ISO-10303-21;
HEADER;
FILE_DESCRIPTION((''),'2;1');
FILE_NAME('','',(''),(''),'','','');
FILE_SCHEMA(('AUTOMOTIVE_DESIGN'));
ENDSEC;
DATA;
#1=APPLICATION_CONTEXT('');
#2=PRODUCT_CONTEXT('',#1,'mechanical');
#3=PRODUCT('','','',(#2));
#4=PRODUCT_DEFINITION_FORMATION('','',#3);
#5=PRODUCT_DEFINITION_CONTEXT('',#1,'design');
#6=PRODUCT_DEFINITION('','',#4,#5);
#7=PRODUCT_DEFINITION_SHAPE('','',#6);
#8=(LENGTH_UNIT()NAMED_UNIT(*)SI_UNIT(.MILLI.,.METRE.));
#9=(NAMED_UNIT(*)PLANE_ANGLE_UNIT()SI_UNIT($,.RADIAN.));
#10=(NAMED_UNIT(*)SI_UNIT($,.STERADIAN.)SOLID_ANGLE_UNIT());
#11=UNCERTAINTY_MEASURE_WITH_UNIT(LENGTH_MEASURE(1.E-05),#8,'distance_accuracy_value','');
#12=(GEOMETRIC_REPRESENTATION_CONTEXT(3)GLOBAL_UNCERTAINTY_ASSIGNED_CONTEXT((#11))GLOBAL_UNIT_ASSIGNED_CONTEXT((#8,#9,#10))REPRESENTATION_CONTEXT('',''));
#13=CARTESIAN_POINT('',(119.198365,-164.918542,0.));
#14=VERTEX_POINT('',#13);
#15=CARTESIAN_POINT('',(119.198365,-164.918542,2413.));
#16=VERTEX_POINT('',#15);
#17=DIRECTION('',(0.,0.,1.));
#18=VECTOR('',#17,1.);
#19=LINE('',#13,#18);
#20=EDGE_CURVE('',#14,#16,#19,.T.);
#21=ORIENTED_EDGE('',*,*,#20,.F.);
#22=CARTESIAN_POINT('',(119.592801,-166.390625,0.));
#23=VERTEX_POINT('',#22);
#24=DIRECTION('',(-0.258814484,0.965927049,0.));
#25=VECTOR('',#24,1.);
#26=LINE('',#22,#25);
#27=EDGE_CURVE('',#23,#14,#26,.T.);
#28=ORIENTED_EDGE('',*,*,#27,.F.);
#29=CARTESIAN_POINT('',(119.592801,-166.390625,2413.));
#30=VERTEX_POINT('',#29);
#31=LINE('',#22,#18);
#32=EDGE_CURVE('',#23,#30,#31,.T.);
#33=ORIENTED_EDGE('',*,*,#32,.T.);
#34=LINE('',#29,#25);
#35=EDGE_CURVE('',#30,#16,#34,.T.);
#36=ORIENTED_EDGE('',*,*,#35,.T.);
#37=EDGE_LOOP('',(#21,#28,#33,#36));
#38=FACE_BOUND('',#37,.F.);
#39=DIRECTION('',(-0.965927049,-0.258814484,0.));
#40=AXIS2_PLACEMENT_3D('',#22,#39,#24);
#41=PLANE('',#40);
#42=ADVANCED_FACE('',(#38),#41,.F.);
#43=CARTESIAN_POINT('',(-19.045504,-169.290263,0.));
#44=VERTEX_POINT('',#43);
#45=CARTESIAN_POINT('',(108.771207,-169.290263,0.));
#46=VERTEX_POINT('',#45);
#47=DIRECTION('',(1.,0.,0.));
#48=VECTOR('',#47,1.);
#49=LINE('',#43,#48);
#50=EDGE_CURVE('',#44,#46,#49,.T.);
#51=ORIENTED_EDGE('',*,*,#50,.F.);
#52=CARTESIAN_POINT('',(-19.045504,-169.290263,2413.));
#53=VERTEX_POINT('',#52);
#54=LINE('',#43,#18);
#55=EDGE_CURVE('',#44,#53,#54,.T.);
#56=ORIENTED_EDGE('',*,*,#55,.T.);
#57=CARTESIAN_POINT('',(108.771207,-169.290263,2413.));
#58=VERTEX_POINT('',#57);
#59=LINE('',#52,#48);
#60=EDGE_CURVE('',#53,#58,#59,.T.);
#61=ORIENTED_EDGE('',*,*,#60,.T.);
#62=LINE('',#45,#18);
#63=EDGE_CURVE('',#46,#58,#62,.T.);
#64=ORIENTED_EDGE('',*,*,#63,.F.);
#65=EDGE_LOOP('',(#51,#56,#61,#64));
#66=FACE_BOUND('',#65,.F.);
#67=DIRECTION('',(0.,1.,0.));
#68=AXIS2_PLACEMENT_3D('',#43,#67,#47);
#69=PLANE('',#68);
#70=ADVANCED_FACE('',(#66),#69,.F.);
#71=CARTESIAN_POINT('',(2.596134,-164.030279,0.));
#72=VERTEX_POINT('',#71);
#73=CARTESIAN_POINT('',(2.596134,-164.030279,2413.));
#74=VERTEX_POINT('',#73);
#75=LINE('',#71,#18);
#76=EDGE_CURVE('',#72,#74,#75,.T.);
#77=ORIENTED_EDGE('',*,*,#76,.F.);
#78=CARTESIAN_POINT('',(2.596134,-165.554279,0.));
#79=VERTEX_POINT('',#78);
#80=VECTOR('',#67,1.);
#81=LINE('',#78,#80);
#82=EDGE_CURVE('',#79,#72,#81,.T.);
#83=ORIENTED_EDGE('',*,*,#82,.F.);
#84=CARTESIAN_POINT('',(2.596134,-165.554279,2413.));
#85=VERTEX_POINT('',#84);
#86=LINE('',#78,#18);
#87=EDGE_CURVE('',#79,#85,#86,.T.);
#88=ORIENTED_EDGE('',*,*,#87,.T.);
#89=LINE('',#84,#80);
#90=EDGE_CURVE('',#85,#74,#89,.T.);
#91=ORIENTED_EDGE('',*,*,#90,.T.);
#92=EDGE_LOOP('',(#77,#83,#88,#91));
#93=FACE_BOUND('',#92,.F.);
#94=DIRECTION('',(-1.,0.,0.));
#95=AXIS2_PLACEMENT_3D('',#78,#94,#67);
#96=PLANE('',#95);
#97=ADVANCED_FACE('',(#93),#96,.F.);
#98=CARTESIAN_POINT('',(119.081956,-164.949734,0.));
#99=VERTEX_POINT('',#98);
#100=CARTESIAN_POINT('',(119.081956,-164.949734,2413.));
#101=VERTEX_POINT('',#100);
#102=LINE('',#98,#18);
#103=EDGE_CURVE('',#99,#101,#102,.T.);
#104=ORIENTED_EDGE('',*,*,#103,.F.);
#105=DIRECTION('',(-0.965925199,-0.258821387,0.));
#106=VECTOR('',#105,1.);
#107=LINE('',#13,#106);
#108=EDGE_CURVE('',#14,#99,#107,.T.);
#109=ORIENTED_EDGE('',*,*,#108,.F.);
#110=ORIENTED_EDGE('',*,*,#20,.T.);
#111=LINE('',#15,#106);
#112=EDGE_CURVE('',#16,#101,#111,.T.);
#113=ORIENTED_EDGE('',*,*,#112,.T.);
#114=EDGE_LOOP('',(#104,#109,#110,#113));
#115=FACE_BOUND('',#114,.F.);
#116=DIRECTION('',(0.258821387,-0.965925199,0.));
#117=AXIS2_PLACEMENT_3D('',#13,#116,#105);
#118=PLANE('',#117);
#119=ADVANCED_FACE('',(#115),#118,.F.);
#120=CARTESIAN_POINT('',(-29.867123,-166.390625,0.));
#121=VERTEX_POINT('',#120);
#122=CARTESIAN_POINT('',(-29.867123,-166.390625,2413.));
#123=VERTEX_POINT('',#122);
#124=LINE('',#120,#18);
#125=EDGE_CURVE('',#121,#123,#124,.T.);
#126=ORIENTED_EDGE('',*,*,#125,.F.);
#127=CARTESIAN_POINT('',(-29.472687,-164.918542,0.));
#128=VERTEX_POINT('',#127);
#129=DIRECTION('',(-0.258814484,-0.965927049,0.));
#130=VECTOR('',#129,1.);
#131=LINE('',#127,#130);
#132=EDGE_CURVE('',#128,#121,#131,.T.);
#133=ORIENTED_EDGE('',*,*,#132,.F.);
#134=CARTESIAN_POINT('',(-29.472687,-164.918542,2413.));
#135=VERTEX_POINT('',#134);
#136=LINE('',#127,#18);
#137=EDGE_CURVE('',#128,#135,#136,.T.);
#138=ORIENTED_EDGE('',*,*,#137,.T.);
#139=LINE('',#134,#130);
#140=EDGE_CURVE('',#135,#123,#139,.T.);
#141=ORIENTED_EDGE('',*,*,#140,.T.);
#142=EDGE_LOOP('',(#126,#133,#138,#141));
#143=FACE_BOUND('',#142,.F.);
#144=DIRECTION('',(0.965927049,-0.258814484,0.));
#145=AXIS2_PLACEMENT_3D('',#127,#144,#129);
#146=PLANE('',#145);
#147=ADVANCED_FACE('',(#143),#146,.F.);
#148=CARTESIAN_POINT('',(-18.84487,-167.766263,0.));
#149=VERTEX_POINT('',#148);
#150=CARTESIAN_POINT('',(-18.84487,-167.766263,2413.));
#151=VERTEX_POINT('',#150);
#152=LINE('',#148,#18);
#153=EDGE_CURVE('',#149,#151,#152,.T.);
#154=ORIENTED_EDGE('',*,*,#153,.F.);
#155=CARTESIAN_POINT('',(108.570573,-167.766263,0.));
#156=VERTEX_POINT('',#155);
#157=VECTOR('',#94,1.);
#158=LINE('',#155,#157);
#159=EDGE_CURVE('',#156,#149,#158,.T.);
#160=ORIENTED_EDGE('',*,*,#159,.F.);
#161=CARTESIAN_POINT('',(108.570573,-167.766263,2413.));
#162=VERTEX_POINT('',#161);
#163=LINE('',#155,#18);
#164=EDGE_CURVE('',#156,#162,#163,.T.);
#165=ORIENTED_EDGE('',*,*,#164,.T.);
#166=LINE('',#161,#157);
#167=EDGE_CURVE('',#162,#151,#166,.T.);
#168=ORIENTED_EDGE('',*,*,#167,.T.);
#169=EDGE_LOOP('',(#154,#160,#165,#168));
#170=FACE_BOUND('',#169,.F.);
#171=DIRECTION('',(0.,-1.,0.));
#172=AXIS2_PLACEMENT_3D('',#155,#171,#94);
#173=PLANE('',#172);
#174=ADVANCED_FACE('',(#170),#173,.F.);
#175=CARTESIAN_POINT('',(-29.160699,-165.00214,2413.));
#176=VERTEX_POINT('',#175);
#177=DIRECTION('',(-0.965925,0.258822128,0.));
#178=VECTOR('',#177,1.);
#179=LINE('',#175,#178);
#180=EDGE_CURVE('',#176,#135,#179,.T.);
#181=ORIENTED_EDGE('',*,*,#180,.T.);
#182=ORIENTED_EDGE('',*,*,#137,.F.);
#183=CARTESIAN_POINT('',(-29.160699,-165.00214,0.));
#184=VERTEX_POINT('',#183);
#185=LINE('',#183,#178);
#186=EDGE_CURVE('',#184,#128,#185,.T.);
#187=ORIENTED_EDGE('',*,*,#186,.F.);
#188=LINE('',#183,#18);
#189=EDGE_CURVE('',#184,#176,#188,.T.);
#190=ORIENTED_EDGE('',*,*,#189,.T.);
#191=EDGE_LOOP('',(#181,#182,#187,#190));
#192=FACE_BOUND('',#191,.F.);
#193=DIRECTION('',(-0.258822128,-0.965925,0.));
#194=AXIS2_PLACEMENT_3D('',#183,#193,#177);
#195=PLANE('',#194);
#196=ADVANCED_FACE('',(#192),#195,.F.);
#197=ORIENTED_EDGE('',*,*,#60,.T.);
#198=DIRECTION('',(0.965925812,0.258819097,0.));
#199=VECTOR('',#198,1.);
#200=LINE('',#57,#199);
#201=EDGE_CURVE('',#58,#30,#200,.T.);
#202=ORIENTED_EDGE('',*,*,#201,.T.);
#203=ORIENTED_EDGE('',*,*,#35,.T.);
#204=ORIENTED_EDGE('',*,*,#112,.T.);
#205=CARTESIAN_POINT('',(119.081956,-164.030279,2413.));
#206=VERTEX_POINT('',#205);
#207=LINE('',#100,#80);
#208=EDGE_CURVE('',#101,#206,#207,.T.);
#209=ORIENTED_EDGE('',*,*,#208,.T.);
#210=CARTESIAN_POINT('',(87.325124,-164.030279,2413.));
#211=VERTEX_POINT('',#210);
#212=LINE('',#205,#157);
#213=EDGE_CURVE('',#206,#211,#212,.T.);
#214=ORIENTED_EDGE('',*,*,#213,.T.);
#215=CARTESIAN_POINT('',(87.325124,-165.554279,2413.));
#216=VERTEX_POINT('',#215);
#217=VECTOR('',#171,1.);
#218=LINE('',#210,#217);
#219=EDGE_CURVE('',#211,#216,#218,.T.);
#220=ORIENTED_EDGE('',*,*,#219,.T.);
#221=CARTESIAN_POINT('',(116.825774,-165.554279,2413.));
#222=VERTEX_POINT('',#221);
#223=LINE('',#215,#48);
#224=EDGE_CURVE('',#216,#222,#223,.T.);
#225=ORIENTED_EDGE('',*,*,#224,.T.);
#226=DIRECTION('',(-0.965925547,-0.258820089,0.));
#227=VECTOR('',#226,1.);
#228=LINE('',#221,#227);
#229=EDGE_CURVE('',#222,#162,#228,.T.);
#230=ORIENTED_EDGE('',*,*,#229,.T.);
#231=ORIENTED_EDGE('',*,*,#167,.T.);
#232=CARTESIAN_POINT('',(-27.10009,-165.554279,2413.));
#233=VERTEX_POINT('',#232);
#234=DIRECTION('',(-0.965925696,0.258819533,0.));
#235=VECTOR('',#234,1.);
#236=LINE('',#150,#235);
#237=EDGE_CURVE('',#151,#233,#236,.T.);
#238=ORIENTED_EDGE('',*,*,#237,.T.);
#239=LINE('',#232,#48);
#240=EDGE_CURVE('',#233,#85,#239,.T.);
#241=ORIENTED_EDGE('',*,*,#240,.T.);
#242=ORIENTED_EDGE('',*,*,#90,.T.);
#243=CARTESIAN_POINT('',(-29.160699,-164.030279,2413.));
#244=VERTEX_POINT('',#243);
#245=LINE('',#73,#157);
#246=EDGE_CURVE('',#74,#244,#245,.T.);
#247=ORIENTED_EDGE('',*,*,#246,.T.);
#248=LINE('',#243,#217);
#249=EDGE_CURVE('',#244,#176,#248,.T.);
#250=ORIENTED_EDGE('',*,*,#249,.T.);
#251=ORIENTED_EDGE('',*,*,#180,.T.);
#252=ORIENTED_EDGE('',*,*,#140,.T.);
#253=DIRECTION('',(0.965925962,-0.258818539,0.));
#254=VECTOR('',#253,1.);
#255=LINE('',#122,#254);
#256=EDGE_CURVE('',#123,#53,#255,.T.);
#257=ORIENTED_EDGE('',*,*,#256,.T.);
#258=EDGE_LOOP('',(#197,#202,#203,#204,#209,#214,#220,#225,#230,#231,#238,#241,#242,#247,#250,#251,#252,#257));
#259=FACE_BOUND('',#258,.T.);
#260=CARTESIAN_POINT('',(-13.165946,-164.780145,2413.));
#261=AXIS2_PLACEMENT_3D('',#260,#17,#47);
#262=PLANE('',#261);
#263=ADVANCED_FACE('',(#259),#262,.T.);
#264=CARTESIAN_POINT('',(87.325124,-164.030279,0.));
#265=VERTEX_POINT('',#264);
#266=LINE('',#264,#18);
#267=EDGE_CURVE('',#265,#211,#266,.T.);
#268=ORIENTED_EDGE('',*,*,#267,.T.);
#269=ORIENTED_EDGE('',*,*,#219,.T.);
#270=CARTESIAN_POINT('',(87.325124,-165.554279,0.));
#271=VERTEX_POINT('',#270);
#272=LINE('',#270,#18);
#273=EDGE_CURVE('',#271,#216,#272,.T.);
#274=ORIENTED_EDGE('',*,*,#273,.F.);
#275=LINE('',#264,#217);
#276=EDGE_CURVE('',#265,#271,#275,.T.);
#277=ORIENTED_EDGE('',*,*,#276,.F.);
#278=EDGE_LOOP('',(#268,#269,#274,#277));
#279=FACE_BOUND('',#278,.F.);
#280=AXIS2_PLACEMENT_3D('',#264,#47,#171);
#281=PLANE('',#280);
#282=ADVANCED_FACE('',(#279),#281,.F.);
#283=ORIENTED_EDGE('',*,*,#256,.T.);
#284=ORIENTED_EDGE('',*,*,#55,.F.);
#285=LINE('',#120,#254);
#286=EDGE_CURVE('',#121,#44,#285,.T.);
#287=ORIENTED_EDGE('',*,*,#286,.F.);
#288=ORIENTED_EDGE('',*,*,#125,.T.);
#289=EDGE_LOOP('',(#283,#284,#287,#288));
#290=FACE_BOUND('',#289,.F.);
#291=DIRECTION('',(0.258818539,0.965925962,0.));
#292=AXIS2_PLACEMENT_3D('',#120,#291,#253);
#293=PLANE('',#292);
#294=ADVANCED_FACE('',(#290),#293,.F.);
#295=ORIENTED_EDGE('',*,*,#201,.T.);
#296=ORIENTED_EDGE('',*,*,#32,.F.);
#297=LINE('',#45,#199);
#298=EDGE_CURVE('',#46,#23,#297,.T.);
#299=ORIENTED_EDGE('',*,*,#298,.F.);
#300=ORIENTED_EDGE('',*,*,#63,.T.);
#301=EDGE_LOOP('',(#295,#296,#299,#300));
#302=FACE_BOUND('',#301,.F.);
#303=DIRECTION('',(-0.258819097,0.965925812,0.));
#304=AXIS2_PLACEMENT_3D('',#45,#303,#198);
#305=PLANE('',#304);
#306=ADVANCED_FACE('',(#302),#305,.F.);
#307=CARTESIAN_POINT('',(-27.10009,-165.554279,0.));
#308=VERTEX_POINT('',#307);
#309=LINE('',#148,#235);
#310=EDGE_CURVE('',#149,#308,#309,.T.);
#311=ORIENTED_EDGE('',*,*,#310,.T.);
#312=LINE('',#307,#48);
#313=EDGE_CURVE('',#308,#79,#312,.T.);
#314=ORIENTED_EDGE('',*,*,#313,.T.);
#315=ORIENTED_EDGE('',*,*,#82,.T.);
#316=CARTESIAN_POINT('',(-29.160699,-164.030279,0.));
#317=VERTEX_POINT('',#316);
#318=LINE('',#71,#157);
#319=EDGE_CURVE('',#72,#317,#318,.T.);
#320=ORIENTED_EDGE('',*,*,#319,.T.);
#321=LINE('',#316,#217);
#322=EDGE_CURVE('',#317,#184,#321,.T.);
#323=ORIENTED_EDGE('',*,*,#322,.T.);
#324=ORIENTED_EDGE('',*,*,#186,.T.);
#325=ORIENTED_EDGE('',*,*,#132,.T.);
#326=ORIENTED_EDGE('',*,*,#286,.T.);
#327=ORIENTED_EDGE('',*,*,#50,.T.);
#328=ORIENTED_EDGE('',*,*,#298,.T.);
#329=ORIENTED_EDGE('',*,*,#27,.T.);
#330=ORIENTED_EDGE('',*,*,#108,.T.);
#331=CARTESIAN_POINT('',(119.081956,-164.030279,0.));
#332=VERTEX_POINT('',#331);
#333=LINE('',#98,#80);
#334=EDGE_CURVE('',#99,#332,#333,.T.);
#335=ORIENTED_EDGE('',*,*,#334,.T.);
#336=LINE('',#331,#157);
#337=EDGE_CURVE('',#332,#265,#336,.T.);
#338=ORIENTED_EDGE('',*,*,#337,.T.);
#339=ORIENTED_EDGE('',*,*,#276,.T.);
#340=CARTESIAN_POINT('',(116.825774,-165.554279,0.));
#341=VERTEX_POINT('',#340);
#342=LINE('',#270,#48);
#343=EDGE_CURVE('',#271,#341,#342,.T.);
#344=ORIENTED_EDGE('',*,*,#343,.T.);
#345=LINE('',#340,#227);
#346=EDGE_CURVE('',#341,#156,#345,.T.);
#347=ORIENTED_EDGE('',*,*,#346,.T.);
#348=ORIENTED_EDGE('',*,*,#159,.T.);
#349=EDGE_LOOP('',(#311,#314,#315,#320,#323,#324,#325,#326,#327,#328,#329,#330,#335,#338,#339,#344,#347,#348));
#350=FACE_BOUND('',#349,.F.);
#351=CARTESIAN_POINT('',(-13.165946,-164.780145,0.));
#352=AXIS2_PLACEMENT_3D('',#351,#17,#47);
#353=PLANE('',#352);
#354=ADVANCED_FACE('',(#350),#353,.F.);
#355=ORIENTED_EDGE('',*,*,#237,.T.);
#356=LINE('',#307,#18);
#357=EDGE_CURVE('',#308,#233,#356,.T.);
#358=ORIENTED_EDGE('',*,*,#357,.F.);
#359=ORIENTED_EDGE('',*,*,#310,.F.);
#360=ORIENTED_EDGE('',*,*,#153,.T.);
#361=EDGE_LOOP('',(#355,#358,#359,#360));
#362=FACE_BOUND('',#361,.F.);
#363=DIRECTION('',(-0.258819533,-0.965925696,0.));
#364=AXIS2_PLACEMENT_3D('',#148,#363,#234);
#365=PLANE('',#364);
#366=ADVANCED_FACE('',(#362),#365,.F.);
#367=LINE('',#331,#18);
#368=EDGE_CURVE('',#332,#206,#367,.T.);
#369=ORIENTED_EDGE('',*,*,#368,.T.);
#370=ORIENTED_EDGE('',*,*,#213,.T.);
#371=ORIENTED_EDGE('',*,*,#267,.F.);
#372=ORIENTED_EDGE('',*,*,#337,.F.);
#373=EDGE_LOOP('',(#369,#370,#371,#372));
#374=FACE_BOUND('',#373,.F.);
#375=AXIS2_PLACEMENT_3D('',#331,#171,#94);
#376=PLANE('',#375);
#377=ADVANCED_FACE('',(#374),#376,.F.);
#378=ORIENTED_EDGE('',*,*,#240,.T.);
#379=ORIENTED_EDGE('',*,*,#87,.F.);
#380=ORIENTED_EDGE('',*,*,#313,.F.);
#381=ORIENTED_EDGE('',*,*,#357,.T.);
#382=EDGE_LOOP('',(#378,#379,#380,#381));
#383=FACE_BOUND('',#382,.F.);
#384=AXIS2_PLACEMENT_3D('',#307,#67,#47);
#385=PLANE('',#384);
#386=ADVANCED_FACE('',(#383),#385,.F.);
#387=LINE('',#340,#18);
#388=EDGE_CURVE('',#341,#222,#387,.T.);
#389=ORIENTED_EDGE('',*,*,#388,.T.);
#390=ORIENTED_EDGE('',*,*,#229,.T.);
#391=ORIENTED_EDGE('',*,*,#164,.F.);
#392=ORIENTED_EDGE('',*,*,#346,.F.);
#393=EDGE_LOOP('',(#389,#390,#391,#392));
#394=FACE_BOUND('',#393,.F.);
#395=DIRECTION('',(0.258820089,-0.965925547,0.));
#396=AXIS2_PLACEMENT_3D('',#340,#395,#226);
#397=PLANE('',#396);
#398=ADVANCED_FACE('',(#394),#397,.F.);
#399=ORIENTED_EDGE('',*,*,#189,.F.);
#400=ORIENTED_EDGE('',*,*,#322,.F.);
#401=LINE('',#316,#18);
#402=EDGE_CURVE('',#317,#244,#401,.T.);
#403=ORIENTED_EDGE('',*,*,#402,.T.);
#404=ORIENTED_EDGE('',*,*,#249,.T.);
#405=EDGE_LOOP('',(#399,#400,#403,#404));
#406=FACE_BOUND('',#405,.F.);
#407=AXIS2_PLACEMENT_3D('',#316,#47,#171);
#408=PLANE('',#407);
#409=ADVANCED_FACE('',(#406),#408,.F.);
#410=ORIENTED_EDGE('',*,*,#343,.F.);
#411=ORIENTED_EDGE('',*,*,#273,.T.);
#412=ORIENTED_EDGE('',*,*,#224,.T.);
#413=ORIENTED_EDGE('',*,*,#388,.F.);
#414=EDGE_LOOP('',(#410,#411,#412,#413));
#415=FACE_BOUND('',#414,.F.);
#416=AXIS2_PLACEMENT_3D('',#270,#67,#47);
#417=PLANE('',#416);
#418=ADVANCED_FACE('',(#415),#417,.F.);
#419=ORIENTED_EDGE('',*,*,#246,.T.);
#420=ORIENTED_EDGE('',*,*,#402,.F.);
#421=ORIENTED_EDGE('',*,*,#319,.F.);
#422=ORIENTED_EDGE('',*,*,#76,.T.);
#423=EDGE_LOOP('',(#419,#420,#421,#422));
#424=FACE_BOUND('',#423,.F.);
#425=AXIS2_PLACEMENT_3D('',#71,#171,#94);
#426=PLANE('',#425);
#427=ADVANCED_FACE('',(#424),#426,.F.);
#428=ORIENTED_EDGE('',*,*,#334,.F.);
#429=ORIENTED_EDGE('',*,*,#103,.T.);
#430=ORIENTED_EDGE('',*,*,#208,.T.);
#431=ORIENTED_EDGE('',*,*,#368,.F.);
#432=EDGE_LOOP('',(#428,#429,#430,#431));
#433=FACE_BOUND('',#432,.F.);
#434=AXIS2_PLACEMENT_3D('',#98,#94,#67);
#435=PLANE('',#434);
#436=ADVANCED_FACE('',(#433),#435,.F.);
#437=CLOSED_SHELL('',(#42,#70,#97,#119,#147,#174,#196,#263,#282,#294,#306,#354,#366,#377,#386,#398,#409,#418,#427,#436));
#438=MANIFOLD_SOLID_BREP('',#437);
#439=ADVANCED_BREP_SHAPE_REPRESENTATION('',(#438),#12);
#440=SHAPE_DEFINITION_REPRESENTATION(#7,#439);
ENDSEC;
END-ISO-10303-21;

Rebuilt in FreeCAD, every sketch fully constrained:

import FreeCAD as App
import Part
import Sketcher
Q = App.Units.Quantity

doc = App.newDocument("Part")
body = doc.addObject("PartDesign::Body", "Body")

# Sketch on XY plane
sketch1 = body.newObject("Sketcher::SketchObject", "Sketch")
sketch1.AttachmentSupport = (doc.getObject("XY_Plane"), [""])
sketch1.MapMode = "FlatFace"
sketch1.addGeometry(Part.LineSegment(App.Vector(-29.160699, -164.030279, 0), App.Vector(-29.160699, -165.00214, 0)), False)
sketch1.addGeometry(Part.LineSegment(App.Vector(-29.160699, -165.00214, 0), App.Vector(-29.472687, -164.918542, 0)), False)
sketch1.addGeometry(Part.LineSegment(App.Vector(-29.472687, -164.918542, 0), App.Vector(-29.867123, -166.390625, 0)), False)
sketch1.addGeometry(Part.LineSegment(App.Vector(-29.867123, -166.390625, 0), App.Vector(-19.045504, -169.290263, 0)), False)
sketch1.addGeometry(Part.LineSegment(App.Vector(-19.045504, -169.290263, 0), App.Vector(108.771207, -169.290263, 0)), False)
sketch1.addGeometry(Part.LineSegment(App.Vector(108.771207, -169.290263, 0), App.Vector(119.592801, -166.390625, 0)), False)
sketch1.addGeometry(Part.LineSegment(App.Vector(119.592801, -166.390625, 0), App.Vector(119.198365, -164.918542, 0)), False)
sketch1.addGeometry(Part.LineSegment(App.Vector(119.198365, -164.918542, 0), App.Vector(119.081956, -164.949734, 0)), False)
sketch1.addGeometry(Part.LineSegment(App.Vector(119.081956, -164.949734, 0), App.Vector(119.081956, -164.030279, 0)), False)
sketch1.addGeometry(Part.LineSegment(App.Vector(119.081956, -164.030279, 0), App.Vector(87.325124, -164.030279, 0)), False)
sketch1.addGeometry(Part.LineSegment(App.Vector(87.325124, -164.030279, 0), App.Vector(87.325124, -165.554279, 0)), False)
sketch1.addGeometry(Part.LineSegment(App.Vector(87.325124, -165.554279, 0), App.Vector(116.825774, -165.554279, 0)), False)
sketch1.addGeometry(Part.LineSegment(App.Vector(116.825774, -165.554279, 0), App.Vector(108.570573, -167.766263, 0)), False)
sketch1.addGeometry(Part.LineSegment(App.Vector(108.570573, -167.766263, 0), App.Vector(-18.84487, -167.766263, 0)), False)
sketch1.addGeometry(Part.LineSegment(App.Vector(-18.84487, -167.766263, 0), App.Vector(-27.10009, -165.554279, 0)), False)
sketch1.addGeometry(Part.LineSegment(App.Vector(-27.10009, -165.554279, 0), App.Vector(2.596134, -165.554279, 0)), False)
sketch1.addGeometry(Part.LineSegment(App.Vector(2.596134, -165.554279, 0), App.Vector(2.596134, -164.030279, 0)), False)
sketch1.addGeometry(Part.LineSegment(App.Vector(2.596134, -164.030279, 0), App.Vector(-29.160699, -164.030279, 0)), False)
sketch1.addConstraint(Sketcher.Constraint("Coincident", 0, 2, 1, 1))
sketch1.addConstraint(Sketcher.Constraint("Coincident", 1, 2, 2, 1))
sketch1.addConstraint(Sketcher.Constraint("Coincident", 2, 2, 3, 1))
sketch1.addConstraint(Sketcher.Constraint("Coincident", 3, 2, 4, 1))
sketch1.addConstraint(Sketcher.Constraint("Coincident", 4, 2, 5, 1))
sketch1.addConstraint(Sketcher.Constraint("Coincident", 5, 2, 6, 1))
sketch1.addConstraint(Sketcher.Constraint("Coincident", 6, 2, 7, 1))
sketch1.addConstraint(Sketcher.Constraint("Coincident", 7, 2, 8, 1))
sketch1.addConstraint(Sketcher.Constraint("Coincident", 8, 2, 9, 1))
sketch1.addConstraint(Sketcher.Constraint("Coincident", 9, 2, 10, 1))
sketch1.addConstraint(Sketcher.Constraint("Coincident", 10, 2, 11, 1))
sketch1.addConstraint(Sketcher.Constraint("Coincident", 11, 2, 12, 1))
sketch1.addConstraint(Sketcher.Constraint("Coincident", 12, 2, 13, 1))
sketch1.addConstraint(Sketcher.Constraint("Coincident", 13, 2, 14, 1))
sketch1.addConstraint(Sketcher.Constraint("Coincident", 14, 2, 15, 1))
sketch1.addConstraint(Sketcher.Constraint("Coincident", 15, 2, 16, 1))
sketch1.addConstraint(Sketcher.Constraint("Coincident", 16, 2, 17, 1))
sketch1.addConstraint(Sketcher.Constraint("Coincident", 17, 2, 0, 1))
sketch1.addConstraint(Sketcher.Constraint("Vertical", 0))
sketch1.addConstraint(Sketcher.Constraint("Horizontal", 4))
sketch1.addConstraint(Sketcher.Constraint("Vertical", 8))
sketch1.addConstraint(Sketcher.Constraint("Horizontal", 9))
sketch1.addConstraint(Sketcher.Constraint("Vertical", 10))
sketch1.addConstraint(Sketcher.Constraint("Horizontal", 11))
sketch1.addConstraint(Sketcher.Constraint("Horizontal", 13))
sketch1.addConstraint(Sketcher.Constraint("Horizontal", 15))
sketch1.addConstraint(Sketcher.Constraint("Vertical", 16))
sketch1.addConstraint(Sketcher.Constraint("Horizontal", 17))
sketch1.addConstraint(Sketcher.Constraint("DistanceY", 10, 2, 10, 1, Q("0.06 in")))
sketch1.addConstraint(Sketcher.Constraint("DistanceY", 16, 1, 16, 2, Q("0.06 in")))
sketch1.addConstraint(Sketcher.Constraint("DistanceY", 4, 2, 12, 2, Q("0.06 in")))
sketch1.addConstraint(Sketcher.Constraint("DistanceX", 4, 1, 4, 2, 127.816711))
sketch1.addConstraint(Sketcher.Constraint("DistanceX", 11, 1, 11, 2, 29.50065))
sketch1.addConstraint(Sketcher.Constraint("DistanceY", 0, 2, 0, 1, 0.971861))
sketch1.addConstraint(Sketcher.Constraint("DistanceX", 0, 2, -1, 1, 29.160699))
sketch1.addConstraint(Sketcher.Constraint("DistanceX", -1, 1, 5, 2, 119.592801))
sketch1.addConstraint(Sketcher.Constraint("DistanceX", 12, 2, 11, 2, 8.255201))
sketch1.addConstraint(Sketcher.Constraint("Distance", 2, 1.524011))
sketch1.addConstraint(Sketcher.Constraint("Distance", 5, 11.203339))
sketch1.addConstraint(Sketcher.Constraint("Distance", 6, 1.524011))
sketch1.addConstraint(Sketcher.Constraint("DistanceX", 9, 2, 9, 1, 31.756832))
sketch1.addConstraint(Sketcher.Constraint("DistanceX", 13, 2, 13, 1, 127.415443))
sketch1.addConstraint(Sketcher.Constraint("DistanceX", 15, 1, 15, 2, 29.696224))
sketch1.addConstraint(Sketcher.Constraint("DistanceX", 17, 2, 17, 1, 31.756833))
sketch1.addConstraint(Sketcher.Constraint("DistanceY", 8, 1, 8, 2, 0.919455))
sketch1.addConstraint(Sketcher.Constraint("DistanceY", 0, 2, -1, 1, 165.00214))
sketch1.addConstraint(Sketcher.Constraint("DistanceY", 1, 2, -1, 1, 164.918542))
sketch1.addConstraint(Sketcher.Constraint("DistanceY", 6, 2, -1, 1, 164.918542))
sketch1.addConstraint(Sketcher.Constraint("DistanceY", 8, 2, -1, 1, 164.030279))
sketch1.addConstraint(Sketcher.Constraint("DistanceX", 13, 2, -1, 1, 18.84487))
sketch1.addConstraint(Sketcher.Constraint("DistanceX", 2, 2, 3, 2, 10.821619))
sketch1.addConstraint(Sketcher.Constraint("DistanceY", 3, 2, 2, 2, 2.899638))
sketch1.addConstraint(Sketcher.Constraint("DistanceY", 3, 2, 1, 2, 4.371721))
sketch1.addConstraint(Sketcher.Constraint("DistanceY", 4, 2, 5, 2, 2.899638))
pad1 = body.newObject("PartDesign::Pad", "Pad")
pad1.Profile = sketch1
pad1.Length = Q("95 in")

doc.recompute()
